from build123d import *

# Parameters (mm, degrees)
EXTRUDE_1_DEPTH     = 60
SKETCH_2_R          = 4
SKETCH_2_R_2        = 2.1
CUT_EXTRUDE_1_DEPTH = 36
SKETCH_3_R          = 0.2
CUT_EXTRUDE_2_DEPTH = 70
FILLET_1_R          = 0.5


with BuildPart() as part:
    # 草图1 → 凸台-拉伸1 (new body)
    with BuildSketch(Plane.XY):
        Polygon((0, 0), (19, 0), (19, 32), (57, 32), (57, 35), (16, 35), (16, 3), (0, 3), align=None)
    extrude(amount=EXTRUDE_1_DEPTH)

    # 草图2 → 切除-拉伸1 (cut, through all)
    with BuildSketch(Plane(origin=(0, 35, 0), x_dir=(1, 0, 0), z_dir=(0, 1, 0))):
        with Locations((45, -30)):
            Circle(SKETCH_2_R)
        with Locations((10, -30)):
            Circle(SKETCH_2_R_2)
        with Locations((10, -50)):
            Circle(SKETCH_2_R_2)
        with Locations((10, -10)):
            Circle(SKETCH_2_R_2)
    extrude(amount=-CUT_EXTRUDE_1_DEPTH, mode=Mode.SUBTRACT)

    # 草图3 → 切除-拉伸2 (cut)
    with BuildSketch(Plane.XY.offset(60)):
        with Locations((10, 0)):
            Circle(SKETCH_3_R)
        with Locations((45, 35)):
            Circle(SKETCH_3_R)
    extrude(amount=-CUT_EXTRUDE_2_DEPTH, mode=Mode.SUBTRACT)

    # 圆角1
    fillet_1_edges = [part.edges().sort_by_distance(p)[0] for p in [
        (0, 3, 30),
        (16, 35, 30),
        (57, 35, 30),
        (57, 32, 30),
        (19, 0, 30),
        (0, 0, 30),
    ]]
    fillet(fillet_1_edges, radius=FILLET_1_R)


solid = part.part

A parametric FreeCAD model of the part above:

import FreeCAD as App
import Part
import Sketcher
from FreeCAD import Vector
Q = App.Units.Quantity


def edges_at(feature, points):
    """Names of the edges that pass closest to the given points."""
    edges = feature.Shape.Edges
    near = lambda p: min(range(len(edges)), key=lambda i: edges[i].distToShape(Part.Vertex(*p))[0])
    return sorted({f"Edge{near(p) + 1}" for p in points})

doc = App.newDocument("Part")
body = doc.addObject("PartDesign::Body", "Body")

sketch1 = doc.addObject("Sketcher::SketchObject", "Sketch")
body.addObject(sketch1)
sketch1.AttachmentSupport = (doc.XY_Plane, [""])
sketch1.MapMode = "FlatFace"
sketch1.addGeometry(Part.LineSegment(Vector(0, 0, 0), Vector(19, 0, 0)), False)
sketch1.addGeometry(Part.LineSegment(Vector(19, 0, 0), Vector(19, 32, 0)), False)
sketch1.addGeometry(Part.LineSegment(Vector(19, 32, 0), Vector(57, 32, 0)), False)
sketch1.addGeometry(Part.LineSegment(Vector(57, 32, 0), Vector(57, 35, 0)), False)
sketch1.addGeometry(Part.LineSegment(Vector(57, 35, 0), Vector(16, 35, 0)), False)
sketch1.addGeometry(Part.LineSegment(Vector(16, 35, 0), Vector(16, 3, 0)), False)
sketch1.addGeometry(Part.LineSegment(Vector(16, 3, 0), Vector(0, 3, 0)), False)
sketch1.addGeometry(Part.LineSegment(Vector(0, 3, 0), Vector(0, 0, 0)), False)
sketch1.addConstraint(Sketcher.Constraint("Coincident", 0, 2, 1, 1))
sketch1.addConstraint(Sketcher.Constraint("Coincident", 1, 2, 2, 1))
sketch1.addConstraint(Sketcher.Constraint("Coincident", 2, 2, 3, 1))
sketch1.addConstraint(Sketcher.Constraint("Coincident", 3, 2, 4, 1))
sketch1.addConstraint(Sketcher.Constraint("Coincident", 4, 2, 5, 1))
sketch1.addConstraint(Sketcher.Constraint("Coincident", 5, 2, 6, 1))
sketch1.addConstraint(Sketcher.Constraint("Coincident", 6, 2, 7, 1))
sketch1.addConstraint(Sketcher.Constraint("Coincident", 7, 2, 0, 1))
sketch1.addConstraint(Sketcher.Constraint("Horizontal", 0))
sketch1.addConstraint(Sketcher.Constraint("Vertical", 1))
sketch1.addConstraint(Sketcher.Constraint("Horizontal", 2))
sketch1.addConstraint(Sketcher.Constraint("Vertical", 3))
sketch1.addConstraint(Sketcher.Constraint("Horizontal", 4))
sketch1.addConstraint(Sketcher.Constraint("Vertical", 5))
sketch1.addConstraint(Sketcher.Constraint("Horizontal", 6))
sketch1.addConstraint(Sketcher.Constraint("Vertical", 7))
sketch1.addConstraint(Sketcher.Constraint("Coincident", 7, 2, -1, 1))
sketch1.addConstraint(Sketcher.Constraint("Equal", 1, 5))
sketch1.addConstraint(Sketcher.Constraint("DistanceX", 0, 1, 0, 2, Q("19 mm")))
sketch1.addConstraint(Sketcher.Constraint("DistanceX", 2, 1, 2, 2, Q("38 mm")))
sketch1.addConstraint(Sketcher.Constraint("DistanceX", 4, 2, 4, 1, Q("41 mm")))
sketch1.addConstraint(Sketcher.Constraint("DistanceY", 1, 1, 1, 2, Q("32 mm")))
sketch1.addConstraint(Sketcher.Constraint("DistanceY", 3, 1, 3, 2, Q("3 mm")))
pad1 = doc.addObject("PartDesign::Pad", "Pad")
body.addObject(pad1)
pad1.Profile = sketch1
pad1.Length = 60

sketch2 = doc.addObject("Sketcher::SketchObject", "Sketch001")
body.addObject(sketch2)
sketch2.AttachmentSupport = (doc.XZ_Plane, [""])
sketch2.MapMode = "FlatFace"
sketch2.AttachmentOffset = App.Placement(Vector(0, 0, -35), App.Rotation())
sketch2.addGeometry(Part.Circle(Vector(45, 30, 0), Vector(0, 0, 1), 4), False)
sketch2.addGeometry(Part.Circle(Vector(10, 30, 0), Vector(0, 0, 1), 2.1), False)
sketch2.addGeometry(Part.Circle(Vector(10, 50, 0), Vector(0, 0, 1), 2.1), False)
sketch2.addGeometry(Part.Circle(Vector(10, 10, 0), Vector(0, 0, 1), 2.1), False)
sketch2.addConstraint(Sketcher.Constraint("Equal", 1, 2))
sketch2.addConstraint(Sketcher.Constraint("Equal", 2, 3))
sketch2.addConstraint(Sketcher.Constraint("Horizontal", 0, 3, 1, 3))
sketch2.addConstraint(Sketcher.Constraint("Vertical", 1, 3, 2, 3))
sketch2.addConstraint(Sketcher.Constraint("Vertical", 2, 3, 3, 3))
sketch2.addConstraint(Sketcher.Constraint("Diameter", 0, Q("8 mm")))
sketch2.addConstraint(Sketcher.Constraint("Diameter", 1, Q("4.2 mm")))
sketch2.addConstraint(Sketcher.Constraint("DistanceX", -1, 1, 0, 3, Q("45 mm")))
sketch2.addConstraint(Sketcher.Constraint("DistanceY", -1, 1, 0, 3, Q("30 mm")))
sketch2.addConstraint(Sketcher.Constraint("DistanceX", -1, 1, 1, 3, Q("10 mm")))
sketch2.addConstraint(Sketcher.Constraint("DistanceY", -1, 1, 2, 3, Q("50 mm")))
sketch2.addConstraint(Sketcher.Constraint("DistanceY", -1, 1, 3, 3, Q("10 mm")))
pocket1 = doc.addObject("PartDesign::Pocket", "Pocket")
body.addObject(pocket1)
pocket1.Profile = sketch2
pocket1.Type = "ThroughAll"
pocket1.Reversed = True

sketch3 = doc.addObject("Sketcher::SketchObject", "Sketch002")
body.addObject(sketch3)
sketch3.AttachmentSupport = (doc.XY_Plane, [""])
sketch3.MapMode = "FlatFace"
sketch3.AttachmentOffset = App.Placement(Vector(0, 0, 60), App.Rotation())
sketch3.addGeometry(Part.Circle(Vector(10, 0, 0), Vector(0, 0, 1), 0.2), False)
sketch3.addGeometry(Part.Circle(Vector(45, 35, 0), Vector(0, 0, 1), 0.2), False)
sketch3.addConstraint(Sketcher.Constraint("Equal", 0, 1))
sketch3.addConstraint(Sketcher.Constraint("PointOnObject", 0, 3, -1))
sketch3.addConstraint(Sketcher.Constraint("Diameter", 0, Q("0.4 mm")))
sketch3.addConstraint(Sketcher.Constraint("DistanceX", -1, 1, 0, 3, Q("10 mm")))
sketch3.addConstraint(Sketcher.Constraint("DistanceX", -1, 1, 1, 3, Q("45 mm")))
sketch3.addConstraint(Sketcher.Constraint("DistanceY", -1, 1, 1, 3, Q("35 mm")))
pocket2 = doc.addObject("PartDesign::Pocket", "Pocket001")
body.addObject(pocket2)
pocket2.Profile = sketch3
pocket2.Length = 70
doc.recompute()

fillet = doc.addObject("PartDesign::Fillet", "Fillet")
body.addObject(fillet)
fillet.Base = (pocket2, edges_at(pocket2, [
    (0, 3, 30),
    (16, 35, 30),
    (57, 35, 30),
    (57, 32, 30),
    (19, 0, 30),
    (0, 0, 30),
]))
fillet.Radius = 0.5

doc.recompute()
